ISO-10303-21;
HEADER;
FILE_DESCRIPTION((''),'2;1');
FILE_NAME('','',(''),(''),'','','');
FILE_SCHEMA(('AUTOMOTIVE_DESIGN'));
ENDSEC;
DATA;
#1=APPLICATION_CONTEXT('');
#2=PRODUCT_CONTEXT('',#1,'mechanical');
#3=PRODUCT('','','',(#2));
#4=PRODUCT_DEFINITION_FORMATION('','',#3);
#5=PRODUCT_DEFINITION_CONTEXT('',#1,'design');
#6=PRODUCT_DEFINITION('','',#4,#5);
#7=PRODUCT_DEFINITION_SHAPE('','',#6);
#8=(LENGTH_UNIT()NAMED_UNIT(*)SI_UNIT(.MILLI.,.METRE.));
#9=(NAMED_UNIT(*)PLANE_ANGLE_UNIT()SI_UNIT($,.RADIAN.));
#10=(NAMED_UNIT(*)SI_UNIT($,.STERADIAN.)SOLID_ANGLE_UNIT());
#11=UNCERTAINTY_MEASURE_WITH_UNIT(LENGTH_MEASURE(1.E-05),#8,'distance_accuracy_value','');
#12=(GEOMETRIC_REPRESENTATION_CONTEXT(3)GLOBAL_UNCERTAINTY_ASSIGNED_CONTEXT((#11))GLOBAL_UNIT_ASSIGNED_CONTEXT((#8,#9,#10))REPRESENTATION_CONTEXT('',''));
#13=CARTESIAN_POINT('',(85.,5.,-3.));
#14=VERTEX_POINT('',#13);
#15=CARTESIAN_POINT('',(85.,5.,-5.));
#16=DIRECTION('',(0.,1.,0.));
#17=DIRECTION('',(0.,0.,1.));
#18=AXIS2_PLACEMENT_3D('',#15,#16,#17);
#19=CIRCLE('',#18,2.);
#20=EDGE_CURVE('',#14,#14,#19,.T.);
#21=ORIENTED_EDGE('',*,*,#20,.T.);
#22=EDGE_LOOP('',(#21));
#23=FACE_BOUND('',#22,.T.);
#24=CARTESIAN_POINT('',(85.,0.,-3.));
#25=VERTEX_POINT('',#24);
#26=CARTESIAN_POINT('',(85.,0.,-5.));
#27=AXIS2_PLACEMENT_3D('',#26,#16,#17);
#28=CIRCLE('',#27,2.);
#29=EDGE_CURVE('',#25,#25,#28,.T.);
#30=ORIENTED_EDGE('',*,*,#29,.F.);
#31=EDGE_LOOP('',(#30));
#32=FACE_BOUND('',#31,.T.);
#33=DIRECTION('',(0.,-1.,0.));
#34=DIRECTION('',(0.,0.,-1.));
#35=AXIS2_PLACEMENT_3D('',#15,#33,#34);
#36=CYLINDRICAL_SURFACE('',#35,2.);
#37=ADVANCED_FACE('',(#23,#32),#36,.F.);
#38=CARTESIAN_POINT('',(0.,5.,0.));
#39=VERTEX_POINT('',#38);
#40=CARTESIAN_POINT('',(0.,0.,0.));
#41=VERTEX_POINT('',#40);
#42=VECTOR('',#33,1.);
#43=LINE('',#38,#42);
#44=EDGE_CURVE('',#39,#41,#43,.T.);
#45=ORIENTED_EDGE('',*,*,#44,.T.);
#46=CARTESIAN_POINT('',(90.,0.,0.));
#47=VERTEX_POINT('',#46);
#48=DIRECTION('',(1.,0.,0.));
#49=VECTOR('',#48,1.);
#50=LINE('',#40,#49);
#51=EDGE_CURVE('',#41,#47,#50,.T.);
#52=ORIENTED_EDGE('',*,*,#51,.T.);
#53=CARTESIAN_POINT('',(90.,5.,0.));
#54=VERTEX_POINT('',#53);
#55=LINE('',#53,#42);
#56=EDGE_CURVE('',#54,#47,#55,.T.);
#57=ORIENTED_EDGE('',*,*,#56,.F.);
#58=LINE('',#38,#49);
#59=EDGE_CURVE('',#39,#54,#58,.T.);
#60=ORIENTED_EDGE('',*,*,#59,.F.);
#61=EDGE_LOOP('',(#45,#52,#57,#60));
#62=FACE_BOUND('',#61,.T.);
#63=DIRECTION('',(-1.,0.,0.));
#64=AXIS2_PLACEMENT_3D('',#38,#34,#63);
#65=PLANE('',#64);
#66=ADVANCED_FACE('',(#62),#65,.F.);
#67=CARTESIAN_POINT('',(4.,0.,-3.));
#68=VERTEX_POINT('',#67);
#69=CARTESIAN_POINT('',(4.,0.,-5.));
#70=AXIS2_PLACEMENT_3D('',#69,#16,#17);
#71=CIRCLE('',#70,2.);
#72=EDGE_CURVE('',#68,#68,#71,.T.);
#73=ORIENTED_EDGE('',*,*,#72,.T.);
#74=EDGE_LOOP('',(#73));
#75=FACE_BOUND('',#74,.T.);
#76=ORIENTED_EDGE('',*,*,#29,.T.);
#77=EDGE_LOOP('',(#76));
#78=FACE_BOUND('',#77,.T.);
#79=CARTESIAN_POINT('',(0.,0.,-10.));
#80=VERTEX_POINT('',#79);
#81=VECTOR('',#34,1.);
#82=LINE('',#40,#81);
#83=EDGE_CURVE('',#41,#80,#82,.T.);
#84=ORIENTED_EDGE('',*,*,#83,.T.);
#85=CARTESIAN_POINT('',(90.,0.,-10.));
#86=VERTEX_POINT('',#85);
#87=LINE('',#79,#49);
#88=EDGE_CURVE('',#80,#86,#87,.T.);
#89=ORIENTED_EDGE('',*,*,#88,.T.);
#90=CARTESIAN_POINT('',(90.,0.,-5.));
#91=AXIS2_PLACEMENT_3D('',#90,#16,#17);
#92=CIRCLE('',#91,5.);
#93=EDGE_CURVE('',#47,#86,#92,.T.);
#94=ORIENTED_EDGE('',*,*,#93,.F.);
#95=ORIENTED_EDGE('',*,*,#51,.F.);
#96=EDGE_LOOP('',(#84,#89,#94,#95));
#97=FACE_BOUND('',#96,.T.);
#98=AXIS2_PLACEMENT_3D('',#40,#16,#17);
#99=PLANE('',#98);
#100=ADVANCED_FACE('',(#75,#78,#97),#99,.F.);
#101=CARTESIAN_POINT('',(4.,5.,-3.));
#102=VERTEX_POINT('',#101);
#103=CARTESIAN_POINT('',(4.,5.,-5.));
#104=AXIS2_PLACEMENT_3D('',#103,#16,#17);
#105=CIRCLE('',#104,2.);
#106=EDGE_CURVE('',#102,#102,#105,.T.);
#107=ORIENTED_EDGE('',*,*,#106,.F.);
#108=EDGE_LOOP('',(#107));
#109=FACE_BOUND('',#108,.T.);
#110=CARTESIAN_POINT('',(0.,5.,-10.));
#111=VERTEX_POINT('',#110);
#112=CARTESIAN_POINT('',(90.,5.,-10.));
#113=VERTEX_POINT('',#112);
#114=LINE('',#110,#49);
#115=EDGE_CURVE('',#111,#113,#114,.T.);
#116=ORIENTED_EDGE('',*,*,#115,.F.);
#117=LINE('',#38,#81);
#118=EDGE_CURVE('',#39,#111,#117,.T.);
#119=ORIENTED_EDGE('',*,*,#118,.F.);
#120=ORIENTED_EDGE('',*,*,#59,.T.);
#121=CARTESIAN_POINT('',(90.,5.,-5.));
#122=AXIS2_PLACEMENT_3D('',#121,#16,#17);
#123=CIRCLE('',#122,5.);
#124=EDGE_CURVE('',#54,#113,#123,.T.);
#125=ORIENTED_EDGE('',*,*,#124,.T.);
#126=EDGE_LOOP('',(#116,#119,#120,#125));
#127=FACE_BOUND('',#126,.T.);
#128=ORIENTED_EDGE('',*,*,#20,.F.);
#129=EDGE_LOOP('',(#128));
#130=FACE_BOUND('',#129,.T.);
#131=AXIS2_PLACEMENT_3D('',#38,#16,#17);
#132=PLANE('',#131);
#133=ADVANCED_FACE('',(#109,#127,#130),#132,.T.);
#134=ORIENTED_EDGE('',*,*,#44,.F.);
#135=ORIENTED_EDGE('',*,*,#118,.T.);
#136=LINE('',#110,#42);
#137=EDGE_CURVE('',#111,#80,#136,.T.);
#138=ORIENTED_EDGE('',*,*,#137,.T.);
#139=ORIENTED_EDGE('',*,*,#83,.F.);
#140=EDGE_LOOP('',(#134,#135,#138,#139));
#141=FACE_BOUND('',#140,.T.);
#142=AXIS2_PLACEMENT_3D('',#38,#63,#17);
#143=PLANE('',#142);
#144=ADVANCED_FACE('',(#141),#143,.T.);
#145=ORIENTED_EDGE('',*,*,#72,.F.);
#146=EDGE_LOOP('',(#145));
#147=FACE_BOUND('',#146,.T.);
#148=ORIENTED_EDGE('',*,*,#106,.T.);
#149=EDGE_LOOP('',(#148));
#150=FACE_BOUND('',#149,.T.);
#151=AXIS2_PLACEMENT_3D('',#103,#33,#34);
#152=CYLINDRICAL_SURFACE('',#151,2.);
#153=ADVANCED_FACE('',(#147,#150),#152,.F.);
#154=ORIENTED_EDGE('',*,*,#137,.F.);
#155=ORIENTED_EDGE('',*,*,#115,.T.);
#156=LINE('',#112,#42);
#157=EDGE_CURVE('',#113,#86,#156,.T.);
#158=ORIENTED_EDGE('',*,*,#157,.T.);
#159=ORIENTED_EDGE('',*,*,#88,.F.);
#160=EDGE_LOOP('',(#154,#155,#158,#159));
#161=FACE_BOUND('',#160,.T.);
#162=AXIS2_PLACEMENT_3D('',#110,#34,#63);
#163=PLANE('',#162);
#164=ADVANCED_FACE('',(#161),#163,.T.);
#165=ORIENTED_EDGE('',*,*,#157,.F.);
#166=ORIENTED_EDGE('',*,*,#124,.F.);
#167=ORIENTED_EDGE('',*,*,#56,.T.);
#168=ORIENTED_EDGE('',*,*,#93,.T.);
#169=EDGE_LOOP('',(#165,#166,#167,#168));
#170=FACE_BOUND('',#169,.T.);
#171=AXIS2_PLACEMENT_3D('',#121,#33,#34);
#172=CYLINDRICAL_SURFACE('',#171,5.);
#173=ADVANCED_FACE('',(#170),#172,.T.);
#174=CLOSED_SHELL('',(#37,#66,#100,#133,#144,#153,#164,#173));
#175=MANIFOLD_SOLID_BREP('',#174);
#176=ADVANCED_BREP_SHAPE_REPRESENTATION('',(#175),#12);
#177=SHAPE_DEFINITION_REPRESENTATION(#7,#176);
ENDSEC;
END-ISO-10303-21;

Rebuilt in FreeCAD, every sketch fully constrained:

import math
import FreeCAD as App
import Part
import Sketcher
Q = App.Units.Quantity

doc = App.newDocument("Part")
body = doc.addObject("PartDesign::Body", "Body")

sketch1 = body.newObject("Sketcher::SketchObject", "Sketch")
sketch1.AttachmentSupport = (doc.getObject("XZ_Plane"), [""])
sketch1.MapMode = "FlatFace"
sketch1.addGeometry([
    Part.LineSegment(App.Vector(0, 0, 0), App.Vector(90, 0, 0)),
    Part.ArcOfCircle(Part.Circle(App.Vector(90, -5, 0), App.Vector(0, 0, 1), 5), math.radians(-90), math.radians(90)),
    Part.LineSegment(App.Vector(90, -10, 0), App.Vector(0, -10, 0)),
    Part.LineSegment(App.Vector(0, -10, 0), App.Vector(0, 0, 0)),
    Part.Circle(App.Vector(4, -5, 0), App.Vector(0, 0, 1), 2),
    Part.Circle(App.Vector(85, -5, 0), App.Vector(0, 0, 1), 2),
], False)
sketch1.addConstraint([
    Sketcher.Constraint("Tangent", 0, 2, 1, 2),
    Sketcher.Constraint("Tangent", 1, 1, 2, 1),
    Sketcher.Constraint("Coincident", 2, 2, 3, 1),
    Sketcher.Constraint("Coincident", 3, 2, 0, 1),
    Sketcher.Constraint("Horizontal", 0),
    Sketcher.Constraint("Horizontal", 2),
    Sketcher.Constraint("Vertical", 3),
    Sketcher.Constraint("Coincident", 3, 2, -1, 1),
    Sketcher.Constraint("Equal", 4, 5),
    Sketcher.Constraint("Horizontal", 1, 3, 4, 3),
    Sketcher.Constraint("Horizontal", 4, 3, 5, 3),
    Sketcher.Constraint("Diameter", 4, Q("4 mm")),
    Sketcher.Constraint("Radius", 1, Q("5 mm")),
    Sketcher.Constraint("DistanceX", 0, 1, 0, 2, Q("90 mm")),
    Sketcher.Constraint("DistanceX", -1, 1, 4, 3, Q("4 mm")),
    Sketcher.Constraint("DistanceX", -1, 1, 5, 3, Q("85 mm")),
])
pad1 = body.newObject("PartDesign::Pad", "Pad")
pad1.Profile = sketch1
pad1.Length = 5
pad1.Reversed = True

doc.recompute()
